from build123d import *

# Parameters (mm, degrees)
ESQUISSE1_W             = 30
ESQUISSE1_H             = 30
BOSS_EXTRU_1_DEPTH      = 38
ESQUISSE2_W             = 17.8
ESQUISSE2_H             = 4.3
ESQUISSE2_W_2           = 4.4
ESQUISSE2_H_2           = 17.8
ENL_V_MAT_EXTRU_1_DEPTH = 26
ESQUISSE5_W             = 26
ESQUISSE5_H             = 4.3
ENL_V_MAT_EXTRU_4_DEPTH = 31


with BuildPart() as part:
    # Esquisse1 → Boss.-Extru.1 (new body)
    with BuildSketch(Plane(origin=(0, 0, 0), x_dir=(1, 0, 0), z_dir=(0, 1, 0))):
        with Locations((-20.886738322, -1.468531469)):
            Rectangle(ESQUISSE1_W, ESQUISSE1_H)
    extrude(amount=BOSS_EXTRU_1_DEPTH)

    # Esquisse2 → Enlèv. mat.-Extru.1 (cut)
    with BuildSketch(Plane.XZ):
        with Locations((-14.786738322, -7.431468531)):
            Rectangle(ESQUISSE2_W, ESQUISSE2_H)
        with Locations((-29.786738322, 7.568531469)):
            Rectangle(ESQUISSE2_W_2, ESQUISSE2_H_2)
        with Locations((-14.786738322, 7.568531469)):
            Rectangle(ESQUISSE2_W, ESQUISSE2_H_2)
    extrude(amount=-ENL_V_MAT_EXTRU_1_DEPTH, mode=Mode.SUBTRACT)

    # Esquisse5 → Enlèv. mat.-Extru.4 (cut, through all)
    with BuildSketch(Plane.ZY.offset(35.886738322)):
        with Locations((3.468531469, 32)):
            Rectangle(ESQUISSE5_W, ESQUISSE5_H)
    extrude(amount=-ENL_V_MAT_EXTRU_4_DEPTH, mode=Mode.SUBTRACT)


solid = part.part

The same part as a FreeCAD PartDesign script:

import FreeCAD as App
import Part
import Sketcher

V = App.Vector
Q = App.Units.Quantity


def add_polygon(sketch, points):
    """Adds a closed chain of lines whose ends are joined by coincident constraints."""
    first, n = sketch.GeometryCount, len(points)
    for a, b in zip(points, points[1:] + points[:1]):
        sketch.addGeometry(Part.LineSegment(App.Vector(*a, 0), App.Vector(*b, 0)), False)
    for i in range(n):
        sketch.addConstraint(Sketcher.Constraint("Coincident", first + i, 2, first + (i + 1) % n, 1))

doc = App.newDocument("Part")
params = doc.addObject("Spreadsheet::Sheet", "Params")
for row, (alias, value) in enumerate([
    ("sketch1_width", "30 mm"),
    ("pad1_length", "38 mm"),
    ("sketch2_width", "17.8 mm"),
    ("sketch2_width2", "4.4 mm"),
    ("sketch2_height", "4.3 mm"),
    ("pocket1_length", "26 mm"),
    ("sketch3_height", "26 mm"),
    ("sketch3_width", "4.3 mm"),
], start=1):
    params.set(f"A{row}", alias)
    params.set(f"B{row}", "=" + value)
    params.setAlias(f"B{row}", alias)

body = doc.addObject("PartDesign::Body", "Body")

# Sketch on XZ plane
sketch1 = body.newObject("Sketcher::SketchObject", "Sketch")
sketch1.AttachmentSupport = (doc.getObject("XZ_Plane"), [""])
sketch1.MapMode = "FlatFace"
add_polygon(sketch1, [(-36, -14), (-36, 16), (-6, 16), (-6, -14)])  # lines 0-3
sketch1.addConstraint([
    Sketcher.Constraint("Vertical", 0),
    Sketcher.Constraint("Horizontal", 1),
    Sketcher.Constraint("Vertical", 2),
    Sketcher.Constraint("Horizontal", 3),
    Sketcher.Constraint("Equal", 3, 0),
    Sketcher.Constraint("DistanceX", 1, 1, 1, 2, Q("30 mm")),
    Sketcher.Constraint("DistanceX", 0, 2, -1, 1, Q("35.886738 mm")),
    Sketcher.Constraint("DistanceY", -1, 1, 0, 2, Q("16.468531 mm")),
])
sketch1.setExpression("Constraints[9]", "Params.sketch1_width")
pad1 = body.newObject("PartDesign::Pad", "Pad")
pad1.Profile = sketch1
pad1.setExpression("Length", "Params.pad1_length")
pad1.Reversed = True

# Sketch on XZ plane
sketch2 = body.newObject("Sketcher::SketchObject", "Sketch001")
sketch2.AttachmentSupport = (doc.getObject("XZ_Plane"), [""])
sketch2.MapMode = "FlatFace"
add_polygon(sketch2, [(-23.7, -5.3), (-23.7, -9.6), (-5.9, -9.6), (-5.9, -5.3)])  # lines 0-3
add_polygon(sketch2, [(-32, 16.5), (-32, -1.3), (-27.6, -1.3), (-27.6, 16.5)])  # lines 4-7
add_polygon(sketch2, [(-23.7, 16.5), (-23.7, -1.3), (-5.9, -1.3), (-5.9, 16.5)])  # lines 8-11
sketch2.addConstraint([
    Sketcher.Constraint("Vertical", 0),
    Sketcher.Constraint("Horizontal", 1),
    Sketcher.Constraint("Vertical", 2),
    Sketcher.Constraint("Horizontal", 3),
    Sketcher.Constraint("Vertical", 4),
    Sketcher.Constraint("Horizontal", 5),
    Sketcher.Constraint("Vertical", 6),
    Sketcher.Constraint("Horizontal", 7),
    Sketcher.Constraint("Vertical", 8),
    Sketcher.Constraint("Horizontal", 9),
    Sketcher.Constraint("Vertical", 10),
    Sketcher.Constraint("Horizontal", 11),
    Sketcher.Constraint("Horizontal", 5, 2, 8, 2),
    Sketcher.Constraint("Horizontal", 7, 2, 10, 2),
    Sketcher.Constraint("Vertical", 3, 2, 8, 2),
    Sketcher.Constraint("Vertical", 2, 2, 9, 2),
    Sketcher.Constraint("Equal", 11, 4),
    Sketcher.Constraint("DistanceX", 1, 1, 1, 2, Q("17.8 mm")),
    Sketcher.Constraint("DistanceX", 5, 1, 5, 2, Q("4.4 mm")),
    Sketcher.Constraint("DistanceY", 0, 2, 0, 1, Q("4.3 mm")),
    Sketcher.Constraint("DistanceX", 4, 2, 3, 2, Q("8.3 mm")),
    Sketcher.Constraint("DistanceY", 3, 2, 4, 2, Q("3.95 mm")),
    Sketcher.Constraint("DistanceX", 0, 2, -1, 1, Q("23.686738 mm")),
    Sketcher.Constraint("DistanceY", 0, 2, -1, 1, Q("9.581469 mm")),
])
sketch2.setExpression("Constraints[29]", "Params.sketch2_width")
sketch2.setExpression("Constraints[30]", "Params.sketch2_width2")
sketch2.setExpression("Constraints[31]", "Params.sketch2_height")
pocket1 = body.newObject("PartDesign::Pocket", "Pocket")
pocket1.Profile = sketch2
pocket1.setExpression("Length", "Params.pocket1_length")

# Sketch on YZ plane
sketch3 = body.newObject("Sketcher::SketchObject", "Sketch002")
sketch3.AttachmentSupport = (doc.getObject("YZ_Plane"), [""])
sketch3.MapMode = "FlatFace"
sketch3.AttachmentOffset = App.Placement(V(0, 0, -35.886738), App.Rotation())
add_polygon(sketch3, [(34.1, -9.5), (29.9, -9.5), (29.9, 16.5), (34.1, 16.5)])  # lines 0-3
sketch3.addConstraint([
    Sketcher.Constraint("Horizontal", 0),
    Sketcher.Constraint("Vertical", 1),
    Sketcher.Constraint("Horizontal", 2),
    Sketcher.Constraint("Vertical", 3),
    Sketcher.Constraint("DistanceY", 1, 1, 1, 2, Q("26 mm")),
    Sketcher.Constraint("DistanceX", 0, 2, 0, 1, Q("4.3 mm")),
    Sketcher.Constraint("DistanceX", -1, 1, 0, 2, Q("29.85 mm")),
    Sketcher.Constraint("DistanceY", 0, 2, -1, 1, Q("9.531469 mm")),
])
sketch3.setExpression("Constraints[8]", "Params.sketch3_height")
sketch3.setExpression("Constraints[9]", "Params.sketch3_width")
pocket2 = body.newObject("PartDesign::Pocket", "Pocket001")
pocket2.Profile = sketch3
pocket2.Type = "ThroughAll"
pocket2.Reversed = True

doc.recompute()
